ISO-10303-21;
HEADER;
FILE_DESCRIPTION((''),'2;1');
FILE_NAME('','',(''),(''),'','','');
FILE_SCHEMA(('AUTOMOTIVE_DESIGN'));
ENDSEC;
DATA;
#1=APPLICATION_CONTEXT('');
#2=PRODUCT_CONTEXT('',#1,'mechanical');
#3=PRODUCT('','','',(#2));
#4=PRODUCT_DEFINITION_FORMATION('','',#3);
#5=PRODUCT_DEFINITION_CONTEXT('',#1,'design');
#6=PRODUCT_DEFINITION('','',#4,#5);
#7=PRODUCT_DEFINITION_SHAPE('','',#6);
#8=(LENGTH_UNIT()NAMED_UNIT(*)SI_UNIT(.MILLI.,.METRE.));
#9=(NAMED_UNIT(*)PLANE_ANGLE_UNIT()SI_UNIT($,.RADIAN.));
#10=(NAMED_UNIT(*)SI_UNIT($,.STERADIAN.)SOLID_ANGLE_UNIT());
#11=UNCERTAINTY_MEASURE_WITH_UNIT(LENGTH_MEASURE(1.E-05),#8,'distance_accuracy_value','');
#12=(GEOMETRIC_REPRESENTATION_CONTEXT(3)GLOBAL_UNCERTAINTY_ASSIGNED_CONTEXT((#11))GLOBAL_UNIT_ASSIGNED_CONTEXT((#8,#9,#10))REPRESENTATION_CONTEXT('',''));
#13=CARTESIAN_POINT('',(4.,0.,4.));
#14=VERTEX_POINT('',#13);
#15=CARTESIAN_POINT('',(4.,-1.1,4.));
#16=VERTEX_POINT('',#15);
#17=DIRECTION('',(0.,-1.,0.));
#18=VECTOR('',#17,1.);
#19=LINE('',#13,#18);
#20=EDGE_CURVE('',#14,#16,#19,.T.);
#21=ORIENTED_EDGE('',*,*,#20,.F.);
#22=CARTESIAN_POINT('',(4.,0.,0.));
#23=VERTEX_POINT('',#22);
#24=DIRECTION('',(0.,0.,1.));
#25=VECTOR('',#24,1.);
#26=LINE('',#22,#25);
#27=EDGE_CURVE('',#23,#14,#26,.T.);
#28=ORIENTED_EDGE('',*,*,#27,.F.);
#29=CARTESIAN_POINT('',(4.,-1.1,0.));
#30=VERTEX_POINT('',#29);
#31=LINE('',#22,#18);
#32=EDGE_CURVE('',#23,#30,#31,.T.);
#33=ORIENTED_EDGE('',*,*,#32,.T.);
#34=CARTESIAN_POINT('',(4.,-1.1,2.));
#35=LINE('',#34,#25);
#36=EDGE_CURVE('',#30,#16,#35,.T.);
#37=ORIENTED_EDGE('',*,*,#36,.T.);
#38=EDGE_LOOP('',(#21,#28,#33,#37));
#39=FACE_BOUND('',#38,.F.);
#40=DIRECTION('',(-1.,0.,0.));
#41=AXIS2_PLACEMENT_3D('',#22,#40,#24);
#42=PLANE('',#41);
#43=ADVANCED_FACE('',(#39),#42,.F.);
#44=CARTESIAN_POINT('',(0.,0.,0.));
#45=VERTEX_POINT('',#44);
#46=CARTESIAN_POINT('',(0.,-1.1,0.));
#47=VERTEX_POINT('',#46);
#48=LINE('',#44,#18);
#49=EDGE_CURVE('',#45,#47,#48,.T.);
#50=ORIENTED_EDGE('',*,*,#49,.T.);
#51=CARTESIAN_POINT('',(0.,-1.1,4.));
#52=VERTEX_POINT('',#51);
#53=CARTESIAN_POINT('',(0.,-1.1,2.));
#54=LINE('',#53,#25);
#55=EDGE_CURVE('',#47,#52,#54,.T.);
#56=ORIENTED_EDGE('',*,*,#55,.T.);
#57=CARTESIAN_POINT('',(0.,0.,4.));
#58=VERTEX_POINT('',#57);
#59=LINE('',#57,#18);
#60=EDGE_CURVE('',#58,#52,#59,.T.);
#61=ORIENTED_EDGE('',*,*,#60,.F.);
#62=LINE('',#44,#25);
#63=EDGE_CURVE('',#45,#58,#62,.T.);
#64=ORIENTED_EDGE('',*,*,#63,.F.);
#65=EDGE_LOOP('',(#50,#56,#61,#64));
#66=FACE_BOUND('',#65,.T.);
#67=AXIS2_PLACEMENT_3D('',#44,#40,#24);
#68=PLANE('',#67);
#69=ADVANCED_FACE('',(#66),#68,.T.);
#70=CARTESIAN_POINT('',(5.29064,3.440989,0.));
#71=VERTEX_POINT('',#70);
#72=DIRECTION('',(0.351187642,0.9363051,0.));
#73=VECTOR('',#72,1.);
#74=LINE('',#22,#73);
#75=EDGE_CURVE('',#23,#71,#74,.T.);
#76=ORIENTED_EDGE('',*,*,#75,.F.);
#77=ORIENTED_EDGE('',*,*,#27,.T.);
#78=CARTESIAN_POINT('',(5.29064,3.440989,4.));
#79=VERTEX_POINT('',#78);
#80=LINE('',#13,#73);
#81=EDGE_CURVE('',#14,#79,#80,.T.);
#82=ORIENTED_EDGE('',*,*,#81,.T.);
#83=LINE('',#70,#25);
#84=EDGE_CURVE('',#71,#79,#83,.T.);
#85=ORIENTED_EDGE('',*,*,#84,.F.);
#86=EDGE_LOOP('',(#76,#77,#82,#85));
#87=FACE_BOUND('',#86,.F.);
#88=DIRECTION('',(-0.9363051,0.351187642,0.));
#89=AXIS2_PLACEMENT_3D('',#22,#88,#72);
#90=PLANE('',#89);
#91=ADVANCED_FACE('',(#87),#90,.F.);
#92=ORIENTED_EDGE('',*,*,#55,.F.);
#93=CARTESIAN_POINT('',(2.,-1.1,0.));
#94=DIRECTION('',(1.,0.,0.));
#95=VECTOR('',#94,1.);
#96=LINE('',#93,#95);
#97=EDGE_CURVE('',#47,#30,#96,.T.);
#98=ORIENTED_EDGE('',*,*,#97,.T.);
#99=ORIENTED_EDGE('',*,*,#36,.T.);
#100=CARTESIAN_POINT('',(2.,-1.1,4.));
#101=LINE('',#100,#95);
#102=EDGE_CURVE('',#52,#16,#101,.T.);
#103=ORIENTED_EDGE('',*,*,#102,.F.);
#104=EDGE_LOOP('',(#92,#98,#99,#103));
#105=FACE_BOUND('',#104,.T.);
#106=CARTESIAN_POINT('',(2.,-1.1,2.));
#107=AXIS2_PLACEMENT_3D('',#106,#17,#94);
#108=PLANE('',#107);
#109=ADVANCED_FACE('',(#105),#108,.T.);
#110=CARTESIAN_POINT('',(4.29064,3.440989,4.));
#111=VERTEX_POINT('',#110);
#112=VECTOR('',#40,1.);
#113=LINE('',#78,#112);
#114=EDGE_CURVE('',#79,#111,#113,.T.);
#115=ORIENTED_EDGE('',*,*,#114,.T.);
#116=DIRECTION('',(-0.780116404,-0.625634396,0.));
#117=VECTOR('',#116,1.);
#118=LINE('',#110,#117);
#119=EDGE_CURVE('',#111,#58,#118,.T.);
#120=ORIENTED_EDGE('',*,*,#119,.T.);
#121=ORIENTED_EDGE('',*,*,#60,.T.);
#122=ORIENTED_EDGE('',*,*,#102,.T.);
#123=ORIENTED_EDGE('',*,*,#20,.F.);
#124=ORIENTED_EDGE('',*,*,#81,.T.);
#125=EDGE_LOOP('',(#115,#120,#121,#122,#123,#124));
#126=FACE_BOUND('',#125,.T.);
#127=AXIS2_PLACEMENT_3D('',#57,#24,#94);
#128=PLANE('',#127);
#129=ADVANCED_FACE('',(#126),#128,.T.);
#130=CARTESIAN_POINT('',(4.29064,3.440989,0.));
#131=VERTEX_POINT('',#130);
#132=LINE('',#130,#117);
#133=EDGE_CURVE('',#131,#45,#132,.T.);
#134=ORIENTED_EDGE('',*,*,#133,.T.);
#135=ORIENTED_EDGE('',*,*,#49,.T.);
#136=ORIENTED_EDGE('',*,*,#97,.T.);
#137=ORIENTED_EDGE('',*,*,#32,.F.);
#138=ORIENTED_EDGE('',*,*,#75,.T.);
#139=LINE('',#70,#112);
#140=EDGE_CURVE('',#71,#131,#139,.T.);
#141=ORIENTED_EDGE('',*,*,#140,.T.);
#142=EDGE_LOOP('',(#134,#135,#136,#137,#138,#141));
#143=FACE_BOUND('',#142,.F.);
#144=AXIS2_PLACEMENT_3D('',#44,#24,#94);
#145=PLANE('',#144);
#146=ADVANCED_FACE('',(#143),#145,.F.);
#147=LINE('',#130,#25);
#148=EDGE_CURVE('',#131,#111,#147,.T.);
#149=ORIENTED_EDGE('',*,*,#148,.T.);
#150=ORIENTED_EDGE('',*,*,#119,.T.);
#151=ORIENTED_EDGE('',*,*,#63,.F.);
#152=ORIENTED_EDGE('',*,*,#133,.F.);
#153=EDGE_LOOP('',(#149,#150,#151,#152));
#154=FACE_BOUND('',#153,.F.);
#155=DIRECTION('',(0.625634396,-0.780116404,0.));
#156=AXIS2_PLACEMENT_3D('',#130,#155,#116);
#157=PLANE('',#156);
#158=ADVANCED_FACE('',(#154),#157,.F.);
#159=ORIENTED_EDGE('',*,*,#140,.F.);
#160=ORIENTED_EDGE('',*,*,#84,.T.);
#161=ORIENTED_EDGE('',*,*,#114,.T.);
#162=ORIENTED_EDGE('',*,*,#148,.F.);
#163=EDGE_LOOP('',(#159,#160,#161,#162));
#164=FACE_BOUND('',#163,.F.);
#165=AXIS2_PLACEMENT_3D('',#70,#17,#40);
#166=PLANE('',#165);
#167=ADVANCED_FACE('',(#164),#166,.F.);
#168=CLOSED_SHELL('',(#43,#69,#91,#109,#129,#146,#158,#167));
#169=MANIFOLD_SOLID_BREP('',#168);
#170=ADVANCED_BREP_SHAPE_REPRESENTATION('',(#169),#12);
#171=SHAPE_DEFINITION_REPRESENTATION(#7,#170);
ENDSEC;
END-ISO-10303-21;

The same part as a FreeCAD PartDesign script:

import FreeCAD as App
import Part
import Sketcher

V = App.Vector


def add_polygon(sketch, points):
    """Adds a closed chain of lines whose ends are joined by coincident constraints."""
    first, n = sketch.GeometryCount, len(points)
    for a, b in zip(points, points[1:] + points[:1]):
        sketch.addGeometry(Part.LineSegment(App.Vector(*a, 0), App.Vector(*b, 0)), False)
    for i in range(n):
        sketch.addConstraint(Sketcher.Constraint("Coincident", first + i, 2, first + (i + 1) % n, 1))

doc = App.newDocument("Part")
params = doc.addObject("Spreadsheet::Sheet", "Params")
for row, (alias, value) in enumerate([
    ("sketch1_width", "4 mm"),
    ("sketch1_width2", "1 mm"),
    ("sketch1_length", "5.5 mm"),
    ("pad1_length", "4 mm"),
    ("sketch2_width", "4 mm"),
    ("pad2_length", "1.1 mm"),
], start=1):
    params.set(f"A{row}", alias)
    params.set(f"B{row}", "=" + value)
    params.setAlias(f"B{row}", alias)

body = doc.addObject("PartDesign::Body", "Body")

sketch1 = body.newObject("Sketcher::SketchObject", "Sketch")
sketch1.AttachmentSupport = (doc.getObject("XY_Plane"), [""])
sketch1.MapMode = "FlatFace"
add_polygon(sketch1, [(4.3, 3.4), (0, 0), (4, 0), (5.3, 3.4)])
sketch1.addConstraint([
    Sketcher.Constraint("Horizontal", 1),
    Sketcher.Constraint("Horizontal", 3),
    Sketcher.Constraint("Coincident", 0, 2, -1, 1),
    Sketcher.Constraint("DistanceX", 1, 1, 1, 2, 4.0),
    Sketcher.Constraint("DistanceX", 3, 2, 3, 1, 1.0),
    Sketcher.Constraint("Distance", 0, 5.5),
    Sketcher.Constraint("DistanceX", -1, 1, 2, 2, 5.29064),
])
sketch1.setExpression("Constraints[7]", "Params.sketch1_width")
sketch1.setExpression("Constraints[8]", "Params.sketch1_width2")
sketch1.setExpression("Constraints[9]", "Params.sketch1_length")
pad1 = body.newObject("PartDesign::Pad", "Pad")
pad1.Profile = sketch1
pad1.setExpression("Length", "Params.pad1_length")

sketch2 = body.newObject("Sketcher::SketchObject", "Sketch001")
sketch2.AttachmentSupport = (doc.getObject("XZ_Plane"), [""])
sketch2.MapMode = "FlatFace"
add_polygon(sketch2, [(0, 4), (0, 0), (4, 0), (4, 4)])
sketch2.addConstraint([
    Sketcher.Constraint("Vertical", 0),
    Sketcher.Constraint("Horizontal", 1),
    Sketcher.Constraint("Vertical", 2),
    Sketcher.Constraint("Horizontal", 3),
    Sketcher.Constraint("Coincident", 0, 2, -1, 1),
    Sketcher.Constraint("Equal", 3, 0),
    Sketcher.Constraint("DistanceX", 1, 1, 1, 2, 4.0),
])
sketch2.setExpression("Constraints[10]", "Params.sketch2_width")
pad2 = body.newObject("PartDesign::Pad", "Pad001")
pad2.Profile = sketch2
pad2.setExpression("Length", "Params.pad2_length")

doc.recompute()
